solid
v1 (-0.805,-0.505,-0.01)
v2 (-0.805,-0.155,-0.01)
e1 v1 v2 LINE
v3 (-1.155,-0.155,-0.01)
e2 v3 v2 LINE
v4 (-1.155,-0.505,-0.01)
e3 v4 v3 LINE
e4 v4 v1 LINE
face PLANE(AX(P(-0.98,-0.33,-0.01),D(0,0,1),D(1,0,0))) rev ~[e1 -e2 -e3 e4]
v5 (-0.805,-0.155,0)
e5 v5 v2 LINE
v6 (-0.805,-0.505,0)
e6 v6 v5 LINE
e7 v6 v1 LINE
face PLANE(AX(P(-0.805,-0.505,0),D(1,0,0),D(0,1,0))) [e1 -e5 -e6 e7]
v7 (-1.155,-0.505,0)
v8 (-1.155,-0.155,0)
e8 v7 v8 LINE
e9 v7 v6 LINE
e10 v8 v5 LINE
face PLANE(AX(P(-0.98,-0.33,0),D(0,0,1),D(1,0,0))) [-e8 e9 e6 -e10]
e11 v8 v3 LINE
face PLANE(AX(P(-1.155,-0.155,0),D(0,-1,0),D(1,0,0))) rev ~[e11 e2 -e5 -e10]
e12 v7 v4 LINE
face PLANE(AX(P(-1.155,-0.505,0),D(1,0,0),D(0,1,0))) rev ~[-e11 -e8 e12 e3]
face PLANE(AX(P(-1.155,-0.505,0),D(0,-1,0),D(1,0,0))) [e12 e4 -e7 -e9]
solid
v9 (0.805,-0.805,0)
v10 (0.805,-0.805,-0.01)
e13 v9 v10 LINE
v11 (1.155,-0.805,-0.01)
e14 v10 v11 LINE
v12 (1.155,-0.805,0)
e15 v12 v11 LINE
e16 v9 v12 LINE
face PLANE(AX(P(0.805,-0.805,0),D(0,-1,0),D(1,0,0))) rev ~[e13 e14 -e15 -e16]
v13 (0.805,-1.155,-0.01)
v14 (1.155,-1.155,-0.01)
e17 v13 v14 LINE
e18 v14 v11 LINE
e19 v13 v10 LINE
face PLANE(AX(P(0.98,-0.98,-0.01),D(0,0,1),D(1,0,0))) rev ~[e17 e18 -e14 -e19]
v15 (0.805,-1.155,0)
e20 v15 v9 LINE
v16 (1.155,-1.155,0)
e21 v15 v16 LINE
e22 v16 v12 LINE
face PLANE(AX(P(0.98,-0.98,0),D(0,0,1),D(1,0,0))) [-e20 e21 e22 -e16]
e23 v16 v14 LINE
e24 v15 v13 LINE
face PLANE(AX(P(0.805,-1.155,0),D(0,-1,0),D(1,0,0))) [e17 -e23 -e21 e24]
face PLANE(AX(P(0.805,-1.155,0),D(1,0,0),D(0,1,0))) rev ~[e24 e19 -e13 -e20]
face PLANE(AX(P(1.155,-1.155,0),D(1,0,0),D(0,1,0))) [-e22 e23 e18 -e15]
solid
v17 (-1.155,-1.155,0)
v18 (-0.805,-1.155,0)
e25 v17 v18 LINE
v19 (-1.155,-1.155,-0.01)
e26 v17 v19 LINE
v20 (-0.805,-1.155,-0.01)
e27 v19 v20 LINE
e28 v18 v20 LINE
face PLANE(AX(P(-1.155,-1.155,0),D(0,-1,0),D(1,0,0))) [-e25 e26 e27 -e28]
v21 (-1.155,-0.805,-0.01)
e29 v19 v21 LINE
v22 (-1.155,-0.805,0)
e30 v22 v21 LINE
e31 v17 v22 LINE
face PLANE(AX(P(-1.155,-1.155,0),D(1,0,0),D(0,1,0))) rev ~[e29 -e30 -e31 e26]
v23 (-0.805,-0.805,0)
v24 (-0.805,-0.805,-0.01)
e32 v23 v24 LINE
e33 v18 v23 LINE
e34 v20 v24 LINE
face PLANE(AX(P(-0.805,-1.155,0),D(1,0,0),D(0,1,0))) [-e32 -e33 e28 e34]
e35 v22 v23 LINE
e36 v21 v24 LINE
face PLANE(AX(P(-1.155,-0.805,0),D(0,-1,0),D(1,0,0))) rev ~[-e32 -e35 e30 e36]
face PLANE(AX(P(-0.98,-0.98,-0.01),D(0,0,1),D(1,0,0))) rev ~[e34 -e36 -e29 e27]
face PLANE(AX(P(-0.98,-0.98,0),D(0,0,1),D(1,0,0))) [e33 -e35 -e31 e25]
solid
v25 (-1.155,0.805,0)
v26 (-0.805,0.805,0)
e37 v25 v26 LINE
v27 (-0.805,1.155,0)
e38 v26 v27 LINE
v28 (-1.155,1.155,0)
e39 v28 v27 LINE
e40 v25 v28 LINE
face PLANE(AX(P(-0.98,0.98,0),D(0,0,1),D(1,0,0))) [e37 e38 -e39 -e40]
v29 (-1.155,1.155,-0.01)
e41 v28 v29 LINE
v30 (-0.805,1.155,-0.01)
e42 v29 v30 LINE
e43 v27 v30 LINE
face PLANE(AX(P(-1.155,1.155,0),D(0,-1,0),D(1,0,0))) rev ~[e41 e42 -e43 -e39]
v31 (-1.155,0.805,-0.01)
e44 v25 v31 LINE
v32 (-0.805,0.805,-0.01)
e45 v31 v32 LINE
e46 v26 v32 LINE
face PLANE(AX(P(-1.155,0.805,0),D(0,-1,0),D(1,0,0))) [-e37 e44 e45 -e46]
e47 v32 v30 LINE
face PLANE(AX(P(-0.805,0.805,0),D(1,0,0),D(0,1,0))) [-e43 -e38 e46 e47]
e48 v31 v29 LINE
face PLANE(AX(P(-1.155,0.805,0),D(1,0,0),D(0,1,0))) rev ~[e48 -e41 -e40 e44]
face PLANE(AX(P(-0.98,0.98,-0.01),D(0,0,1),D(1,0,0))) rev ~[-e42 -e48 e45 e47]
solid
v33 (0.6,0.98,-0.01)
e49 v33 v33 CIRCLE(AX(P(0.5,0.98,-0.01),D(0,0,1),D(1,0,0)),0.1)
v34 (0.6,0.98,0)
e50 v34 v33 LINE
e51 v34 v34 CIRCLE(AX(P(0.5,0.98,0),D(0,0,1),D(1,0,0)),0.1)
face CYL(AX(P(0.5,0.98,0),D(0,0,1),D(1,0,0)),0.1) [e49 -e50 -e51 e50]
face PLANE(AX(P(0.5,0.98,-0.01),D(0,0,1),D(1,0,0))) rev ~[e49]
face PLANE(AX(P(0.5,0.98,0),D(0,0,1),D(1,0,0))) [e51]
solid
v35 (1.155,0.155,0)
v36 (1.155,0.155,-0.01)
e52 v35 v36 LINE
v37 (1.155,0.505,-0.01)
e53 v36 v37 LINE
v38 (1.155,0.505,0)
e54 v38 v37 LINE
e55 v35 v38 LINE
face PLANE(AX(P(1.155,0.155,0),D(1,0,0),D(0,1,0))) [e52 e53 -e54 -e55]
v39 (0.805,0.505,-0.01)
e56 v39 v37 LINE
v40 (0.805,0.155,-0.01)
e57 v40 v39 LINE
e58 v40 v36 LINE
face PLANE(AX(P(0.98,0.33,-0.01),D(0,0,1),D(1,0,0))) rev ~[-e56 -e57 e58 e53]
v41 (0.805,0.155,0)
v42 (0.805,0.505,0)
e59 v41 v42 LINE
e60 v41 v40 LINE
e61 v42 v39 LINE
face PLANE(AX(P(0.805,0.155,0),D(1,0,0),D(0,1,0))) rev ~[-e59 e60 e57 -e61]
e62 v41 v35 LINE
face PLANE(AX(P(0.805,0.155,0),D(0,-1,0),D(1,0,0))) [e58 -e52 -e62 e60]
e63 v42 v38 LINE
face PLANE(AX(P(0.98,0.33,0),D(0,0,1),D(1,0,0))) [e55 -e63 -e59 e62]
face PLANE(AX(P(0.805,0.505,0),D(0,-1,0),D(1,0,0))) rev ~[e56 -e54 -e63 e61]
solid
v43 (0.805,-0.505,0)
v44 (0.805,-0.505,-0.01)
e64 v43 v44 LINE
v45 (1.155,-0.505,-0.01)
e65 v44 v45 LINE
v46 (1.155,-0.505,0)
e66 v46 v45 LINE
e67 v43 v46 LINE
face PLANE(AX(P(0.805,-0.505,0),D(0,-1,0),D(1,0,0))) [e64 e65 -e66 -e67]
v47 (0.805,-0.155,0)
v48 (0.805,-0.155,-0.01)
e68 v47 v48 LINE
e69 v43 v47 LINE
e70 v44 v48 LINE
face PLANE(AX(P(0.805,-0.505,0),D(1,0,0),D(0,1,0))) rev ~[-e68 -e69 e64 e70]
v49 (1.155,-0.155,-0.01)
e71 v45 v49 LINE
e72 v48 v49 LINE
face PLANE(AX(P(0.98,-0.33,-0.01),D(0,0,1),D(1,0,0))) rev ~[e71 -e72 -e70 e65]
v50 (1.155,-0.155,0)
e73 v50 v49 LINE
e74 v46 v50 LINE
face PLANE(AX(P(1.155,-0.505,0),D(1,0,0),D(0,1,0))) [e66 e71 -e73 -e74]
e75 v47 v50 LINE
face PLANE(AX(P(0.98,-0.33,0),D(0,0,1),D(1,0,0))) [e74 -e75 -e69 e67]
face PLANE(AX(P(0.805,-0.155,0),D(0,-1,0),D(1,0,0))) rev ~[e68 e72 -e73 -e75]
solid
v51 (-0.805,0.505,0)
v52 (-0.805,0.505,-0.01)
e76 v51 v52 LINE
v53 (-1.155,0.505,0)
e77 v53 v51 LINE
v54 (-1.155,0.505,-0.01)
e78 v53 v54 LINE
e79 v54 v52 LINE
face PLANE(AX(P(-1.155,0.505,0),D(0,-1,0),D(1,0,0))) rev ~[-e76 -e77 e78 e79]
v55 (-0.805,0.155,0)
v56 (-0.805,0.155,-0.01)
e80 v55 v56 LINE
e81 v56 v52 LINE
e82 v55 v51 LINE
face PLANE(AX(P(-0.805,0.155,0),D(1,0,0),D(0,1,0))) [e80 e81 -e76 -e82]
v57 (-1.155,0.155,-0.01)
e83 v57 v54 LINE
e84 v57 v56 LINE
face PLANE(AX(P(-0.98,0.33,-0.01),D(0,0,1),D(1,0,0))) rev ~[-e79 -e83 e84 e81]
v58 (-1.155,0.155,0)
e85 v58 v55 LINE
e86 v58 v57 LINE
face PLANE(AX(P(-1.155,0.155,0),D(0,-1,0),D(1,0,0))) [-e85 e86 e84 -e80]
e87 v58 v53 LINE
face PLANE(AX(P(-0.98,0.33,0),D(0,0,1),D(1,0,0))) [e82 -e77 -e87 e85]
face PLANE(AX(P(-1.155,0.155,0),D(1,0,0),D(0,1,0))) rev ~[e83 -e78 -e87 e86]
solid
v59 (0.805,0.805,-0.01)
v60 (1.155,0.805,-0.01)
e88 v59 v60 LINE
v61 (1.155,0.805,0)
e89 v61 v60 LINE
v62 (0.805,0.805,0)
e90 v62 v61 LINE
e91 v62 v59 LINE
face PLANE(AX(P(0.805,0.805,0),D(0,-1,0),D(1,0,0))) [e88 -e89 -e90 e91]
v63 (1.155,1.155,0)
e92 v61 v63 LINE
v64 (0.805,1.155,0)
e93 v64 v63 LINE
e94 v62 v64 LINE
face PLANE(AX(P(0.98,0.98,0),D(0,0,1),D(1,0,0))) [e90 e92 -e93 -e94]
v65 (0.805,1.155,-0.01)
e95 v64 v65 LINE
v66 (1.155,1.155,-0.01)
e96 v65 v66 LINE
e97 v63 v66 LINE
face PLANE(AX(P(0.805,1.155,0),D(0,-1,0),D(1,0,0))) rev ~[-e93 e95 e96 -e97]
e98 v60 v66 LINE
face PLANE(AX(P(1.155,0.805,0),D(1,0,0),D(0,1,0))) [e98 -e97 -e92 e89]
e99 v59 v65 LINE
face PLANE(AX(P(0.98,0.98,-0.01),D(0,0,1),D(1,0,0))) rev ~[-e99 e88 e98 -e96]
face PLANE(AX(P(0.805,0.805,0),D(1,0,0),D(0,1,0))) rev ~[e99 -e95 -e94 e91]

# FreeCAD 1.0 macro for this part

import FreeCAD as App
import Part
import Sketcher
from FreeCAD import Vector
Q = App.Units.Quantity

doc = App.newDocument("Part")
body = doc.addObject("PartDesign::Body", "Body")

# Sketch on XY plane
sketch1 = doc.addObject("Sketcher::SketchObject", "Sketch")
body.addObject(sketch1)
sketch1.AttachmentSupport = (doc.XY_Plane, [""])
sketch1.MapMode = "FlatFace"
sketch1.addGeometry([
    Part.LineSegment(Vector(-1.155, -0.805, 0), Vector(-1.155, -1.155, 0)),
    Part.LineSegment(Vector(-1.155, -1.155, 0), Vector(-0.805, -1.155, 0)),
    Part.LineSegment(Vector(-0.805, -1.155, 0), Vector(-0.805, -0.805, 0)),
    Part.LineSegment(Vector(-0.805, -0.805, 0), Vector(-1.155, -0.805, 0)),
], False)
sketch1.addConstraint([
    Sketcher.Constraint("Coincident", 0, 2, 1, 1),
    Sketcher.Constraint("Coincident", 1, 2, 2, 1),
    Sketcher.Constraint("Coincident", 2, 2, 3, 1),
    Sketcher.Constraint("Coincident", 3, 2, 0, 1),
    Sketcher.Constraint("Vertical", 0),
    Sketcher.Constraint("Horizontal", 1),
    Sketcher.Constraint("Vertical", 2),
    Sketcher.Constraint("Horizontal", 3),
    Sketcher.Constraint("Equal", 3, 0),
    Sketcher.Constraint("DistanceX", 1, 1, 1, 2, Q("0.35 mm")),
    Sketcher.Constraint("DistanceX", 0, 2, -1, 1, Q("1.155 mm")),
    Sketcher.Constraint("DistanceY", 0, 2, -1, 1, Q("1.155 mm")),
])
pad1 = doc.addObject("PartDesign::Pad", "Pad")
body.addObject(pad1)
pad1.Profile = sketch1
pad1.Length = 0.01
pad1.Reversed = True
body2 = doc.addObject("PartDesign::Body", "Body001")

# Sketch on XY plane
sketch2 = doc.addObject("Sketcher::SketchObject", "Sketch001")
body2.addObject(sketch2)
sketch2.AttachmentSupport = (doc.getObject("XY_Plane001"), [""])
sketch2.MapMode = "FlatFace"
sketch2.addGeometry([
    Part.LineSegment(Vector(-1.155, 0.505, 0), Vector(-1.155, 0.155, 0)),
    Part.LineSegment(Vector(-1.155, 0.155, 0), Vector(-0.805, 0.155, 0)),
    Part.LineSegment(Vector(-0.805, 0.155, 0), Vector(-0.805, 0.505, 0)),
    Part.LineSegment(Vector(-0.805, 0.505, 0), Vector(-1.155, 0.505, 0)),
], False)
sketch2.addConstraint([
    Sketcher.Constraint("Coincident", 0, 2, 1, 1),
    Sketcher.Constraint("Coincident", 1, 2, 2, 1),
    Sketcher.Constraint("Coincident", 2, 2, 3, 1),
    Sketcher.Constraint("Coincident", 3, 2, 0, 1),
    Sketcher.Constraint("Vertical", 0),
    Sketcher.Constraint("Horizontal", 1),
    Sketcher.Constraint("Vertical", 2),
    Sketcher.Constraint("Horizontal", 3),
    Sketcher.Constraint("Equal", 3, 0),
    Sketcher.Constraint("DistanceX", 1, 1, 1, 2, Q("0.35 mm")),
    Sketcher.Constraint("DistanceX", 0, 2, -1, 1, Q("1.155 mm")),
    Sketcher.Constraint("DistanceY", -1, 1, 0, 2, Q("0.155 mm")),
])
pad2 = doc.addObject("PartDesign::Pad", "Pad001")
body2.addObject(pad2)
pad2.Profile = sketch2
pad2.Length = 0.01
pad2.Reversed = True
body3 = doc.addObject("PartDesign::Body", "Body002")

# Sketch on XY plane
sketch3 = doc.addObject("Sketcher::SketchObject", "Sketch002")
body3.addObject(sketch3)
sketch3.AttachmentSupport = (doc.getObject("XY_Plane002"), [""])
sketch3.MapMode = "FlatFace"
sketch3.addGeometry([
    Part.LineSegment(Vector(-1.155, -0.155, 0), Vector(-1.155, -0.505, 0)),
    Part.LineSegment(Vector(-1.155, -0.505, 0), Vector(-0.805, -0.505, 0)),
    Part.LineSegment(Vector(-0.805, -0.505, 0), Vector(-0.805, -0.155, 0)),
    Part.LineSegment(Vector(-0.805, -0.155, 0), Vector(-1.155, -0.155, 0)),
], False)
sketch3.addConstraint([
    Sketcher.Constraint("Coincident", 0, 2, 1, 1),
    Sketcher.Constraint("Coincident", 1, 2, 2, 1),
    Sketcher.Constraint("Coincident", 2, 2, 3, 1),
    Sketcher.Constraint("Coincident", 3, 2, 0, 1),
    Sketcher.Constraint("Vertical", 0),
    Sketcher.Constraint("Horizontal", 1),
    Sketcher.Constraint("Vertical", 2),
    Sketcher.Constraint("Horizontal", 3),
    Sketcher.Constraint("Equal", 3, 0),
    Sketcher.Constraint("DistanceX", 1, 1, 1, 2, Q("0.35 mm")),
    Sketcher.Constraint("DistanceX", 0, 2, -1, 1, Q("1.155 mm")),
    Sketcher.Constraint("DistanceY", 0, 2, -1, 1, Q("0.505 mm")),
])
pad3 = doc.addObject("PartDesign::Pad", "Pad002")
body3.addObject(pad3)
pad3.Profile = sketch3
pad3.Length = 0.01
pad3.Reversed = True
body4 = doc.addObject("PartDesign::Body", "Body003")

# Sketch on XY plane
sketch4 = doc.addObject("Sketcher::SketchObject", "Sketch003")
body4.addObject(sketch4)
sketch4.AttachmentSupport = (doc.getObject("XY_Plane003"), [""])
sketch4.MapMode = "FlatFace"
sketch4.addGeometry([
    Part.LineSegment(Vector(0.805, -0.155, 0), Vector(0.805, -0.505, 0)),
    Part.LineSegment(Vector(0.805, -0.505, 0), Vector(1.155, -0.505, 0)),
    Part.LineSegment(Vector(1.155, -0.505, 0), Vector(1.155, -0.155, 0)),
    Part.LineSegment(Vector(1.155, -0.155, 0), Vector(0.805, -0.155, 0)),
], False)
sketch4.addConstraint([
    Sketcher.Constraint("Coincident", 0, 2, 1, 1),
    Sketcher.Constraint("Coincident", 1, 2, 2, 1),
    Sketcher.Constraint("Coincident", 2, 2, 3, 1),
    Sketcher.Constraint("Coincident", 3, 2, 0, 1),
    Sketcher.Constraint("Vertical", 0),
    Sketcher.Constraint("Horizontal", 1),
    Sketcher.Constraint("Vertical", 2),
    Sketcher.Constraint("Horizontal", 3),
    Sketcher.Constraint("Equal", 3, 0),
    Sketcher.Constraint("DistanceX", 1, 1, 1, 2, Q("0.35 mm")),
    Sketcher.Constraint("DistanceX", -1, 1, 0, 2, Q("0.805 mm")),
    Sketcher.Constraint("DistanceY", 0, 2, -1, 1, Q("0.505 mm")),
])
pad4 = doc.addObject("PartDesign::Pad", "Pad003")
body4.addObject(pad4)
pad4.Profile = sketch4
pad4.Length = 0.01
pad4.Reversed = True
body5 = doc.addObject("PartDesign::Body", "Body004")

# Sketch on XY plane
sketch5 = doc.addObject("Sketcher::SketchObject", "Sketch004")
body5.addObject(sketch5)
sketch5.AttachmentSupport = (doc.getObject("XY_Plane004"), [""])
sketch5.MapMode = "FlatFace"
sketch5.addGeometry(Part.Circle(Vector(0.5, 0.98, 0), Vector(0, 0, 1), 0.1), False)
sketch5.addConstraint([
    Sketcher.Constraint("Diameter", 0, Q("0.2 mm")),
    Sketcher.Constraint("DistanceX", -1, 1, 0, 3, Q("0.5 mm")),
    Sketcher.Constraint("DistanceY", -1, 1, 0, 3, Q("0.98 mm")),
])
pad5 = doc.addObject("PartDesign::Pad", "Pad004")
body5.addObject(pad5)
pad5.Profile = sketch5
pad5.Length = 0.01
pad5.Reversed = True
body6 = doc.addObject("PartDesign::Body", "Body005")

# Sketch on XY plane
sketch6 = doc.addObject("Sketcher::SketchObject", "Sketch005")
body6.addObject(sketch6)
sketch6.AttachmentSupport = (doc.getObject("XY_Plane005"), [""])
sketch6.MapMode = "FlatFace"
sketch6.addGeometry([
    Part.LineSegment(Vector(0.805, 0.505, 0), Vector(0.805, 0.155, 0)),
    Part.LineSegment(Vector(0.805, 0.155, 0), Vector(1.155, 0.155, 0)),
    Part.LineSegment(Vector(1.155, 0.155, 0), Vector(1.155, 0.505, 0)),
    Part.LineSegment(Vector(1.155, 0.505, 0), Vector(0.805, 0.505, 0)),
], False)
sketch6.addConstraint([
    Sketcher.Constraint("Coincident", 0, 2, 1, 1),
    Sketcher.Constraint("Coincident", 1, 2, 2, 1),
    Sketcher.Constraint("Coincident", 2, 2, 3, 1),
    Sketcher.Constraint("Coincident", 3, 2, 0, 1),
    Sketcher.Constraint("Vertical", 0),
    Sketcher.Constraint("Horizontal", 1),
    Sketcher.Constraint("Vertical", 2),
    Sketcher.Constraint("Horizontal", 3),
    Sketcher.Constraint("Equal", 3, 0),
    Sketcher.Constraint("DistanceX", 1, 1, 1, 2, Q("0.35 mm")),
    Sketcher.Constraint("DistanceX", -1, 1, 0, 2, Q("0.805 mm")),
    Sketcher.Constraint("DistanceY", -1, 1, 0, 2, Q("0.155 mm")),
])
pad6 = doc.addObject("PartDesign::Pad", "Pad005")
body6.addObject(pad6)
pad6.Profile = sketch6
pad6.Length = 0.01
pad6.Reversed = True
body7 = doc.addObject("PartDesign::Body", "Body006")

# Sketch on XY plane
sketch7 = doc.addObject("Sketcher::SketchObject", "Sketch006")
body7.addObject(sketch7)
sketch7.AttachmentSupport = (doc.getObject("XY_Plane006"), [""])
sketch7.MapMode = "FlatFace"
sketch7.addGeometry([
    Part.LineSegment(Vector(0.805, -0.805, 0), Vector(0.805, -1.155, 0)),
    Part.LineSegment(Vector(0.805, -1.155, 0), Vector(1.155, -1.155, 0)),
    Part.LineSegment(Vector(1.155, -1.155, 0), Vector(1.155, -0.805, 0)),
    Part.LineSegment(Vector(1.155, -0.805, 0), Vector(0.805, -0.805, 0)),
], False)
sketch7.addConstraint([
    Sketcher.Constraint("Coincident", 0, 2, 1, 1),
    Sketcher.Constraint("Coincident", 1, 2, 2, 1),
    Sketcher.Constraint("Coincident", 2, 2, 3, 1),
    Sketcher.Constraint("Coincident", 3, 2, 0, 1),
    Sketcher.Constraint("Vertical", 0),
    Sketcher.Constraint("Horizontal", 1),
    Sketcher.Constraint("Vertical", 2),
    Sketcher.Constraint("Horizontal", 3),
    Sketcher.Constraint("Equal", 3, 0),
    Sketcher.Constraint("DistanceX", 1, 1, 1, 2, Q("0.35 mm")),
    Sketcher.Constraint("DistanceX", -1, 1, 0, 2, Q("0.805 mm")),
    Sketcher.Constraint("DistanceY", 0, 2, -1, 1, Q("1.155 mm")),
])
pad7 = doc.addObject("PartDesign::Pad", "Pad006")
body7.addObject(pad7)
pad7.Profile = sketch7
pad7.Length = 0.01
pad7.Reversed = True
body8 = doc.addObject("PartDesign::Body", "Body007")

# Sketch on XY plane
sketch8 = doc.addObject("Sketcher::SketchObject", "Sketch007")
body8.addObject(sketch8)
sketch8.AttachmentSupport = (doc.getObject("XY_Plane007"), [""])
sketch8.MapMode = "FlatFace"
sketch8.addGeometry([
    Part.LineSegment(Vector(0.805, 1.155, 0), Vector(0.805, 0.805, 0)),
    Part.LineSegment(Vector(0.805, 0.805, 0), Vector(1.155, 0.805, 0)),
    Part.LineSegment(Vector(1.155, 0.805, 0), Vector(1.155, 1.155, 0)),
    Part.LineSegment(Vector(1.155, 1.155, 0), Vector(0.805, 1.155, 0)),
], False)
sketch8.addConstraint([
    Sketcher.Constraint("Coincident", 0, 2, 1, 1),
    Sketcher.Constraint("Coincident", 1, 2, 2, 1),
    Sketcher.Constraint("Coincident", 2, 2, 3, 1),
    Sketcher.Constraint("Coincident", 3, 2, 0, 1),
    Sketcher.Constraint("Vertical", 0),
    Sketcher.Constraint("Horizontal", 1),
    Sketcher.Constraint("Vertical", 2),
    Sketcher.Constraint("Horizontal", 3),
    Sketcher.Constraint("Equal", 3, 0),
    Sketcher.Constraint("DistanceX", 1, 1, 1, 2, Q("0.35 mm")),
    Sketcher.Constraint("DistanceX", -1, 1, 0, 2, Q("0.805 mm")),
    Sketcher.Constraint("DistanceY", -1, 1, 0, 2, Q("0.805 mm")),
])
pad8 = doc.addObject("PartDesign::Pad", "Pad007")
body8.addObject(pad8)
pad8.Profile = sketch8
pad8.Length = 0.01
pad8.Reversed = True
body9 = doc.addObject("PartDesign::Body", "Body008")
body9.AllowCompound = True

# Sketch on XY plane
sketch9 = doc.addObject("Sketcher::SketchObject", "Sketch008")
body9.addObject(sketch9)
sketch9.AttachmentSupport = (doc.getObject("XY_Plane008"), [""])
sketch9.MapMode = "FlatFace"
sketch9.addGeometry([
    Part.LineSegment(Vector(-1.155, 1.155, 0), Vector(-1.155, 0.805, 0)),
    Part.LineSegment(Vector(-1.155, 0.805, 0), Vector(-0.805, 0.805, 0)),
    Part.LineSegment(Vector(-0.805, 0.805, 0), Vector(-0.805, 1.155, 0)),
    Part.LineSegment(Vector(-0.805, 1.155, 0), Vector(-1.155, 1.155, 0)),
], False)
sketch9.addConstraint([
    Sketcher.Constraint("Coincident", 0, 2, 1, 1),
    Sketcher.Constraint("Coincident", 1, 2, 2, 1),
    Sketcher.Constraint("Coincident", 2, 2, 3, 1),
    Sketcher.Constraint("Coincident", 3, 2, 0, 1),
    Sketcher.Constraint("Vertical", 0),
    Sketcher.Constraint("Horizontal", 1),
    Sketcher.Constraint("Vertical", 2),
    Sketcher.Constraint("Horizontal", 3),
    Sketcher.Constraint("Equal", 3, 0),
    Sketcher.Constraint("DistanceX", 1, 1, 1, 2, Q("0.35 mm")),
    Sketcher.Constraint("DistanceX", 0, 2, -1, 1, Q("1.155 mm")),
    Sketcher.Constraint("DistanceY", -1, 1, 0, 2, Q("0.805 mm")),
])
pad9 = doc.addObject("PartDesign::Pad", "Pad008")
body9.addObject(pad9)
pad9.Profile = sketch9
pad9.Length = 0.01
pad9.Reversed = True
doc.recompute()

boolean = doc.addObject("PartDesign::Boolean", "Boolean")
body9.addObject(boolean)
boolean.Type = "Fuse"
boolean.addObjects([body])
doc.recompute()

boolean2 = doc.addObject("PartDesign::Boolean", "Boolean001")
body9.addObject(boolean2)
boolean2.Type = "Fuse"
boolean2.addObjects([body2])
doc.recompute()

boolean3 = doc.addObject("PartDesign::Boolean", "Boolean002")
body9.addObject(boolean3)
boolean3.Type = "Fuse"
boolean3.addObjects([body3])
doc.recompute()

boolean4 = doc.addObject("PartDesign::Boolean", "Boolean003")
body9.addObject(boolean4)
boolean4.Type = "Fuse"
boolean4.addObjects([body4])
doc.recompute()

boolean5 = doc.addObject("PartDesign::Boolean", "Boolean004")
body9.addObject(boolean5)
boolean5.Type = "Fuse"
boolean5.addObjects([body5])
doc.recompute()

boolean6 = doc.addObject("PartDesign::Boolean", "Boolean005")
body9.addObject(boolean6)
boolean6.Type = "Fuse"
boolean6.addObjects([body6])
doc.recompute()

boolean7 = doc.addObject("PartDesign::Boolean", "Boolean006")
body9.addObject(boolean7)
boolean7.Type = "Fuse"
boolean7.addObjects([body7])
doc.recompute()

boolean8 = doc.addObject("PartDesign::Boolean", "Boolean007")
body9.addObject(boolean8)
boolean8.Type = "Fuse"
boolean8.addObjects([body8])

doc.recompute()
